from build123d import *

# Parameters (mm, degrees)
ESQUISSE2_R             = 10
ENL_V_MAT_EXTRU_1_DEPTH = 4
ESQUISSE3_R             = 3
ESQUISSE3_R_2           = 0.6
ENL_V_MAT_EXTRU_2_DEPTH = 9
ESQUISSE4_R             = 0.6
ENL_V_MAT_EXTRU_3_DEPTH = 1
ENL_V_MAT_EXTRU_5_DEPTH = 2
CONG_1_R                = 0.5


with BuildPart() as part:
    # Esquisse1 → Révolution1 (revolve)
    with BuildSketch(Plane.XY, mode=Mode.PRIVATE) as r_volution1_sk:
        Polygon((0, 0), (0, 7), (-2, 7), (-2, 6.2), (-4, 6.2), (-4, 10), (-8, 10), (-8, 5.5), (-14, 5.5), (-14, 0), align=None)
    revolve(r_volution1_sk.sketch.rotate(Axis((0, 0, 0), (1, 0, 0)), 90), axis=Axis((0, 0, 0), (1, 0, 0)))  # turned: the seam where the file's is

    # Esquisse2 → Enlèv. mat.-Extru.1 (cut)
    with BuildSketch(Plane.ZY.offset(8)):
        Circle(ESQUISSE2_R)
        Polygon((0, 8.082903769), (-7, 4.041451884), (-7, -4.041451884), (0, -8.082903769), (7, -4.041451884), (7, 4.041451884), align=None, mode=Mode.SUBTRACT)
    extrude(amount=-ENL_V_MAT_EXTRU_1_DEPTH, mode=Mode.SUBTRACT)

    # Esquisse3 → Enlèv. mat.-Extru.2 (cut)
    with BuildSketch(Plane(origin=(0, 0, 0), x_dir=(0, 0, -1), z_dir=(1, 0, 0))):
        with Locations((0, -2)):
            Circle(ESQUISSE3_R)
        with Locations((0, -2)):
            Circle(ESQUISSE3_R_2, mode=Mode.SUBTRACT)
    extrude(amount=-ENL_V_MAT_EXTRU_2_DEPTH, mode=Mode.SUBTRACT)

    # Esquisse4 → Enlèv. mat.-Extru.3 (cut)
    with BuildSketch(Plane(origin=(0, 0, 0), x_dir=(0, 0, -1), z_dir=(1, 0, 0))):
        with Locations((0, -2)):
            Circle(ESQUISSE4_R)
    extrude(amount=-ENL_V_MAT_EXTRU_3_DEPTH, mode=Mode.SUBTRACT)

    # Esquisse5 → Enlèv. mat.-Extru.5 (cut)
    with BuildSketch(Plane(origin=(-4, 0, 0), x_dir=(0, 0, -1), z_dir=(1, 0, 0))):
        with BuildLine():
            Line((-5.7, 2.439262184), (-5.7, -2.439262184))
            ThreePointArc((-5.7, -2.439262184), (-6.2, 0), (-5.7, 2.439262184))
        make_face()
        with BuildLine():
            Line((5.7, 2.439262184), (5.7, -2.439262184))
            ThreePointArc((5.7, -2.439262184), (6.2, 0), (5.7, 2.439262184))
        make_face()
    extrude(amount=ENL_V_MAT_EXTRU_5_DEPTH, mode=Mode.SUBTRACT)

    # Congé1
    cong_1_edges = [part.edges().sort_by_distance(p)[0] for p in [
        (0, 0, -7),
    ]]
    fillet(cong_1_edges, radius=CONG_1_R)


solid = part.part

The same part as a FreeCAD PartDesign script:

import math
import FreeCAD as App
import Part
import Sketcher
from FreeCAD import Vector
Q = App.Units.Quantity


def edges_at(feature, points):
    """Names of the edges that pass closest to the given points."""
    edges = feature.Shape.Edges
    near = lambda p: min(range(len(edges)), key=lambda i: edges[i].distToShape(Part.Vertex(*p))[0])
    return sorted({f"Edge{near(p) + 1}" for p in points})

doc = App.newDocument("Part")
body = doc.addObject("PartDesign::Body", "Body")

sketch1 = body.newObject("Sketcher::SketchObject", "Sketch")
sketch1.AttachmentSupport = (doc.getObject("XY_Plane"), [""])
sketch1.MapMode = "FlatFace"
sketch1.addGeometry([
    Part.LineSegment(Vector(0, 0, 0), Vector(0, 7, 0)),
    Part.LineSegment(Vector(0, 7, 0), Vector(-2, 7, 0)),
    Part.LineSegment(Vector(-2, 7, 0), Vector(-2, 6.2, 0)),
    Part.LineSegment(Vector(-2, 6.2, 0), Vector(-4, 6.2, 0)),
    Part.LineSegment(Vector(-4, 6.2, 0), Vector(-4, 10, 0)),
    Part.LineSegment(Vector(-4, 10, 0), Vector(-8, 10, 0)),
    Part.LineSegment(Vector(-8, 10, 0), Vector(-8, 5.5, 0)),
    Part.LineSegment(Vector(-8, 5.5, 0), Vector(-14, 5.5, 0)),
    Part.LineSegment(Vector(-14, 5.5, 0), Vector(-14, 0, 0)),
    Part.LineSegment(Vector(-14, 0, 0), Vector(0, 0, 0)),
], False)
sketch1.addConstraint([
    Sketcher.Constraint("Coincident", 0, 2, 1, 1),
    Sketcher.Constraint("Coincident", 1, 2, 2, 1),
    Sketcher.Constraint("Coincident", 2, 2, 3, 1),
    Sketcher.Constraint("Coincident", 3, 2, 4, 1),
    Sketcher.Constraint("Coincident", 4, 2, 5, 1),
    Sketcher.Constraint("Coincident", 5, 2, 6, 1),
    Sketcher.Constraint("Coincident", 6, 2, 7, 1),
    Sketcher.Constraint("Coincident", 7, 2, 8, 1),
    Sketcher.Constraint("Coincident", 8, 2, 9, 1),
    Sketcher.Constraint("Coincident", 9, 2, 0, 1),
    Sketcher.Constraint("Vertical", 0),
    Sketcher.Constraint("Horizontal", 1),
    Sketcher.Constraint("Vertical", 2),
    Sketcher.Constraint("Horizontal", 3),
    Sketcher.Constraint("Vertical", 4),
    Sketcher.Constraint("Horizontal", 5),
    Sketcher.Constraint("Vertical", 6),
    Sketcher.Constraint("Horizontal", 7),
    Sketcher.Constraint("Vertical", 8),
    Sketcher.Constraint("Horizontal", 9),
    Sketcher.Constraint("Coincident", 9, 2, -1, 1),
    Sketcher.Constraint("Equal", 1, 3),
    Sketcher.Constraint("DistanceX", 1, 2, 1, 1, 2.0),
    Sketcher.Constraint("DistanceX", 5, 2, 5, 1, 4.0),
    Sketcher.Constraint("DistanceX", 7, 2, 7, 1, 6.0),
    Sketcher.Constraint("DistanceY", 0, 1, 0, 2, 7.0),
    Sketcher.Constraint("DistanceY", 2, 2, 2, 1, 0.8),
    Sketcher.Constraint("DistanceY", 4, 1, 4, 2, 3.8),
    Sketcher.Constraint("DistanceY", 6, 2, 6, 1, 4.5),
])
revolution = body.newObject("PartDesign::Revolution", "Revolution")
revolution.Profile = sketch1
revolution.ReferenceAxis = (sketch1, ["H_Axis"])
revolution.Angle = 360

sketch2 = body.newObject("Sketcher::SketchObject", "Sketch001")
sketch2.AttachmentSupport = (doc.getObject("YZ_Plane"), [""])
sketch2.MapMode = "FlatFace"
sketch2.AttachmentOffset = App.Placement(Vector(0, 0, -8), App.Rotation())
sketch2.addGeometry([
    Part.Circle(Vector(0, 0, 0), Vector(0, 0, 1), 10),
    Part.LineSegment(Vector(4, -7, 0), Vector(8, 0, 0)),
    Part.LineSegment(Vector(8, 0, 0), Vector(4, 7, 0)),
    Part.LineSegment(Vector(4, 7, 0), Vector(-4, 7, 0)),
    Part.LineSegment(Vector(-4, 7, 0), Vector(-8, 0, 0)),
    Part.LineSegment(Vector(-8, 0, 0), Vector(-4, -7, 0)),
    Part.LineSegment(Vector(-4, -7, 0), Vector(4, -7, 0)),
], False)
sketch2.addConstraint([
    Sketcher.Constraint("Coincident", 1, 2, 2, 1),
    Sketcher.Constraint("Coincident", 2, 2, 3, 1),
    Sketcher.Constraint("Coincident", 3, 2, 4, 1),
    Sketcher.Constraint("Coincident", 4, 2, 5, 1),
    Sketcher.Constraint("Coincident", 5, 2, 6, 1),
    Sketcher.Constraint("Coincident", 6, 2, 1, 1),
    Sketcher.Constraint("Horizontal", 3),
    Sketcher.Constraint("Horizontal", 6),
    Sketcher.Constraint("Coincident", 0, 3, -1, 1),
    Sketcher.Constraint("Symmetric", 1, 2, 4, 2, -1, 1),
    Sketcher.Constraint("Symmetric", 2, 2, 5, 2, -1, 1),
    Sketcher.Constraint("PointOnObject", 1, 2, -1),
    Sketcher.Constraint("Parallel", 1, 4),
    Sketcher.Constraint("Vertical", 3, 2, 5, 2),
    Sketcher.Constraint("Diameter", 0, 20.0),
    Sketcher.Constraint("Angle", 1, Q("60 deg")),
    Sketcher.Constraint("DistanceY", -1, 1, 2, 2, 7.0),
    Sketcher.Constraint("DistanceX", 3, 2, 3, 1, 8.082904),
])
pocket1 = body.newObject("PartDesign::Pocket", "Pocket")
pocket1.Profile = sketch2
pocket1.Length = 4
pocket1.Reversed = True

sketch3 = body.newObject("Sketcher::SketchObject", "Sketch002")
sketch3.AttachmentSupport = (doc.getObject("YZ_Plane"), [""])
sketch3.MapMode = "FlatFace"
sketch3.addGeometry([
    Part.Circle(Vector(-2, 0, 0), Vector(0, 0, 1), 3),
    Part.Circle(Vector(-2, 0, 0), Vector(0, 0, 1), 0.6),
], False)
sketch3.addConstraint([
    Sketcher.Constraint("Coincident", 1, 3, 0, 3),
    Sketcher.Constraint("PointOnObject", 0, 3, -1),
    Sketcher.Constraint("Diameter", 0, 6.0),
    Sketcher.Constraint("Diameter", 1, 1.2),
    Sketcher.Constraint("DistanceX", 0, 3, -1, 1, 2.0),
])
pocket2 = body.newObject("PartDesign::Pocket", "Pocket001")
pocket2.Profile = sketch3
pocket2.Length = 9

sketch4 = body.newObject("Sketcher::SketchObject", "Sketch003")
sketch4.AttachmentSupport = (doc.getObject("YZ_Plane"), [""])
sketch4.MapMode = "FlatFace"
sketch4.addGeometry(Part.Circle(Vector(-2, 0, 0), Vector(0, 0, 1), 0.6), False)
sketch4.addConstraint([
    Sketcher.Constraint("PointOnObject", 0, 3, -1),
    Sketcher.Constraint("Diameter", 0, 1.2),
    Sketcher.Constraint("DistanceX", 0, 3, -1, 1, 2.0),
])
pocket3 = body.newObject("PartDesign::Pocket", "Pocket002")
pocket3.Profile = sketch4
pocket3.Length = 1

sketch5 = body.newObject("Sketcher::SketchObject", "Sketch004")
sketch5.AttachmentSupport = (doc.getObject("YZ_Plane"), [""])
sketch5.MapMode = "FlatFace"
sketch5.AttachmentOffset = App.Placement(Vector(0, 0, -4), App.Rotation())
sketch5.addGeometry([
    Part.LineSegment(Vector(-2.4, 5.7, 0), Vector(2.4, 5.7, 0)),
    Part.ArcOfCircle(Part.Circle(Vector(0, 0, 0), Vector(0, 0, 1), 6.2), math.radians(67), math.radians(113)),
    Part.LineSegment(Vector(2.4, -5.7, 0), Vector(-2.4, -5.7, 0)),
    Part.ArcOfCircle(Part.Circle(Vector(0, 0, 0), Vector(0, 0, 1), 6.2), math.radians(-113), math.radians(-67)),
], False)
sketch5.addConstraint([
    Sketcher.Constraint("Coincident", 0, 1, 1, 2),
    Sketcher.Constraint("Coincident", 1, 1, 0, 2),
    Sketcher.Constraint("Coincident", 2, 1, 3, 2),
    Sketcher.Constraint("Coincident", 3, 1, 2, 2),
    Sketcher.Constraint("Horizontal", 0),
    Sketcher.Constraint("Horizontal", 2),
    Sketcher.Constraint("Coincident", 1, 3, -1, 1),
    Sketcher.Constraint("Coincident", 3, 3, -1, 1),
    Sketcher.Constraint("Equal", 1, 3),
    Sketcher.Constraint("Vertical", 1, 1, 2, 1),
    Sketcher.Constraint("Radius", 1, 6.2),
    Sketcher.Constraint("DistanceY", -1, 1, 0, 1, 5.7),
])
pocket4 = body.newObject("PartDesign::Pocket", "Pocket003")
pocket4.Profile = sketch5
pocket4.Length = 2
pocket4.Reversed = True
doc.recompute()

fillet = body.newObject("PartDesign::Fillet", "Fillet")
fillet.Base = (pocket4, edges_at(pocket4, [(0, 0, -7)]))
fillet.Radius = 0.5

doc.recompute()
